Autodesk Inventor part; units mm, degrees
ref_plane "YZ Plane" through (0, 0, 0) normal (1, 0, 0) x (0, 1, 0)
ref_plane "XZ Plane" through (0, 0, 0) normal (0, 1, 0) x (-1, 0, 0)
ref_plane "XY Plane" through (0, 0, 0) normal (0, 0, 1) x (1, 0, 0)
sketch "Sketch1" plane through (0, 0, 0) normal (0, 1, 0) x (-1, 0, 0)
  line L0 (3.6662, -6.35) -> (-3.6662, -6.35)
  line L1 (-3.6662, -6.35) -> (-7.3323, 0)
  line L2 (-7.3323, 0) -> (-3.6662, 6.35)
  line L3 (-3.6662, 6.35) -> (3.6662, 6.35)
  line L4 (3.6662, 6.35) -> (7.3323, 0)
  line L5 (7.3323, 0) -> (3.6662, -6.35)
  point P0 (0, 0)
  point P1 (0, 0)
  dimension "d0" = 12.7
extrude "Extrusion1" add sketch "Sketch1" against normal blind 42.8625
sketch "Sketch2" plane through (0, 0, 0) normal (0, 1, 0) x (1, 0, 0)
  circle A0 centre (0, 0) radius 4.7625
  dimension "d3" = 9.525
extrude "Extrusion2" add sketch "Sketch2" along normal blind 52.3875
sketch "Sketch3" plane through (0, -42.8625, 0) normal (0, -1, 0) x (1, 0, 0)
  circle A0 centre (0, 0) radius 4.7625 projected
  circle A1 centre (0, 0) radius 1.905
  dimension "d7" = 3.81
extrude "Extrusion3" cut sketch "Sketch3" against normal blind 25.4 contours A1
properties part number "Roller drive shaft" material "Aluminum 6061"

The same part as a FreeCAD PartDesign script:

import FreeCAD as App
import Part
import Sketcher
Q = App.Units.Quantity


def add_polygon(sketch, points):
    """Adds a closed chain of lines whose ends are joined by coincident constraints."""
    first, n = sketch.GeometryCount, len(points)
    for a, b in zip(points, points[1:] + points[:1]):
        sketch.addGeometry(Part.LineSegment(App.Vector(*a, 0), App.Vector(*b, 0)), False)
    for i in range(n):
        sketch.addConstraint(Sketcher.Constraint("Coincident", first + i, 2, first + (i + 1) % n, 1))

doc = App.newDocument("Part")
body = doc.addObject("PartDesign::Body", "Body")

sketch1 = body.newObject("Sketcher::SketchObject", "Sketch")
sketch1.AttachmentSupport = (doc.getObject("XZ_Plane"), [""])
sketch1.MapMode = "FlatFace"
add_polygon(sketch1, [(4, -6), (-4, -6), (-7, 0), (-4, 6), (4, 6), (7, 0)])
sketch1.addConstraint(Sketcher.Constraint("Horizontal", 0))
sketch1.addConstraint(Sketcher.Constraint("Horizontal", 3))
sketch1.addConstraint(Sketcher.Constraint("Symmetric", 0, 2, 3, 2, -1, 1))
sketch1.addConstraint(Sketcher.Constraint("Symmetric", 1, 2, 4, 2, -1, 1))
sketch1.addConstraint(Sketcher.Constraint("PointOnObject", 1, 2, -1))
sketch1.addConstraint(Sketcher.Constraint("Parallel", 2, 5))
sketch1.addConstraint(Sketcher.Constraint("Vertical", 0, 2, 2, 2))
sketch1.addConstraint(Sketcher.Constraint("DistanceY", 0, 2, 2, 2, Q("0.5 in")))
sketch1.addConstraint(Sketcher.Constraint("Angle", 1, Q("119.9995 deg")))
sketch1.addConstraint(Sketcher.Constraint("DistanceX", 1, 2, 3, 2, Q("0.433 in")))
pad1 = body.newObject("PartDesign::Pad", "Pad")
pad1.Profile = sketch1
pad1.Length = Q("1.6875 in")

sketch2 = body.newObject("Sketcher::SketchObject", "Sketch001")
sketch2.AttachmentSupport = (doc.getObject("XZ_Plane"), [""])
sketch2.MapMode = "FlatFace"
sketch2.addGeometry(Part.Circle(App.Vector(0, 0, 0), App.Vector(0, 0, 1), 4.8), False)
sketch2.addConstraint(Sketcher.Constraint("Coincident", 0, 3, -1, 1))
sketch2.addConstraint(Sketcher.Constraint("Diameter", 0, Q("0.375 in")))
pad2 = body.newObject("PartDesign::Pad", "Pad001")
pad2.Profile = sketch2
pad2.Length = Q("2.0625 in")
pad2.Reversed = True

sketch3 = body.newObject("Sketcher::SketchObject", "Sketch002")
sketch3.AttachmentSupport = (doc.getObject("XZ_Plane"), [""])
sketch3.MapMode = "FlatFace"
sketch3.AttachmentOffset = App.Placement(App.Vector(0, 0, 1.6875 * 25.4), App.Rotation())
sketch3.addGeometry(Part.Circle(App.Vector(0, 0, 0), App.Vector(0, 0, 1), 1.9), False)
sketch3.addConstraint(Sketcher.Constraint("Coincident", 0, 3, -1, 1))
sketch3.addConstraint(Sketcher.Constraint("Diameter", 0, Q("0.15 in")))
pocket1 = body.newObject("PartDesign::Pocket", "Pocket")
pocket1.Profile = sketch3
pocket1.Length = Q("1 in")

doc.recompute()
